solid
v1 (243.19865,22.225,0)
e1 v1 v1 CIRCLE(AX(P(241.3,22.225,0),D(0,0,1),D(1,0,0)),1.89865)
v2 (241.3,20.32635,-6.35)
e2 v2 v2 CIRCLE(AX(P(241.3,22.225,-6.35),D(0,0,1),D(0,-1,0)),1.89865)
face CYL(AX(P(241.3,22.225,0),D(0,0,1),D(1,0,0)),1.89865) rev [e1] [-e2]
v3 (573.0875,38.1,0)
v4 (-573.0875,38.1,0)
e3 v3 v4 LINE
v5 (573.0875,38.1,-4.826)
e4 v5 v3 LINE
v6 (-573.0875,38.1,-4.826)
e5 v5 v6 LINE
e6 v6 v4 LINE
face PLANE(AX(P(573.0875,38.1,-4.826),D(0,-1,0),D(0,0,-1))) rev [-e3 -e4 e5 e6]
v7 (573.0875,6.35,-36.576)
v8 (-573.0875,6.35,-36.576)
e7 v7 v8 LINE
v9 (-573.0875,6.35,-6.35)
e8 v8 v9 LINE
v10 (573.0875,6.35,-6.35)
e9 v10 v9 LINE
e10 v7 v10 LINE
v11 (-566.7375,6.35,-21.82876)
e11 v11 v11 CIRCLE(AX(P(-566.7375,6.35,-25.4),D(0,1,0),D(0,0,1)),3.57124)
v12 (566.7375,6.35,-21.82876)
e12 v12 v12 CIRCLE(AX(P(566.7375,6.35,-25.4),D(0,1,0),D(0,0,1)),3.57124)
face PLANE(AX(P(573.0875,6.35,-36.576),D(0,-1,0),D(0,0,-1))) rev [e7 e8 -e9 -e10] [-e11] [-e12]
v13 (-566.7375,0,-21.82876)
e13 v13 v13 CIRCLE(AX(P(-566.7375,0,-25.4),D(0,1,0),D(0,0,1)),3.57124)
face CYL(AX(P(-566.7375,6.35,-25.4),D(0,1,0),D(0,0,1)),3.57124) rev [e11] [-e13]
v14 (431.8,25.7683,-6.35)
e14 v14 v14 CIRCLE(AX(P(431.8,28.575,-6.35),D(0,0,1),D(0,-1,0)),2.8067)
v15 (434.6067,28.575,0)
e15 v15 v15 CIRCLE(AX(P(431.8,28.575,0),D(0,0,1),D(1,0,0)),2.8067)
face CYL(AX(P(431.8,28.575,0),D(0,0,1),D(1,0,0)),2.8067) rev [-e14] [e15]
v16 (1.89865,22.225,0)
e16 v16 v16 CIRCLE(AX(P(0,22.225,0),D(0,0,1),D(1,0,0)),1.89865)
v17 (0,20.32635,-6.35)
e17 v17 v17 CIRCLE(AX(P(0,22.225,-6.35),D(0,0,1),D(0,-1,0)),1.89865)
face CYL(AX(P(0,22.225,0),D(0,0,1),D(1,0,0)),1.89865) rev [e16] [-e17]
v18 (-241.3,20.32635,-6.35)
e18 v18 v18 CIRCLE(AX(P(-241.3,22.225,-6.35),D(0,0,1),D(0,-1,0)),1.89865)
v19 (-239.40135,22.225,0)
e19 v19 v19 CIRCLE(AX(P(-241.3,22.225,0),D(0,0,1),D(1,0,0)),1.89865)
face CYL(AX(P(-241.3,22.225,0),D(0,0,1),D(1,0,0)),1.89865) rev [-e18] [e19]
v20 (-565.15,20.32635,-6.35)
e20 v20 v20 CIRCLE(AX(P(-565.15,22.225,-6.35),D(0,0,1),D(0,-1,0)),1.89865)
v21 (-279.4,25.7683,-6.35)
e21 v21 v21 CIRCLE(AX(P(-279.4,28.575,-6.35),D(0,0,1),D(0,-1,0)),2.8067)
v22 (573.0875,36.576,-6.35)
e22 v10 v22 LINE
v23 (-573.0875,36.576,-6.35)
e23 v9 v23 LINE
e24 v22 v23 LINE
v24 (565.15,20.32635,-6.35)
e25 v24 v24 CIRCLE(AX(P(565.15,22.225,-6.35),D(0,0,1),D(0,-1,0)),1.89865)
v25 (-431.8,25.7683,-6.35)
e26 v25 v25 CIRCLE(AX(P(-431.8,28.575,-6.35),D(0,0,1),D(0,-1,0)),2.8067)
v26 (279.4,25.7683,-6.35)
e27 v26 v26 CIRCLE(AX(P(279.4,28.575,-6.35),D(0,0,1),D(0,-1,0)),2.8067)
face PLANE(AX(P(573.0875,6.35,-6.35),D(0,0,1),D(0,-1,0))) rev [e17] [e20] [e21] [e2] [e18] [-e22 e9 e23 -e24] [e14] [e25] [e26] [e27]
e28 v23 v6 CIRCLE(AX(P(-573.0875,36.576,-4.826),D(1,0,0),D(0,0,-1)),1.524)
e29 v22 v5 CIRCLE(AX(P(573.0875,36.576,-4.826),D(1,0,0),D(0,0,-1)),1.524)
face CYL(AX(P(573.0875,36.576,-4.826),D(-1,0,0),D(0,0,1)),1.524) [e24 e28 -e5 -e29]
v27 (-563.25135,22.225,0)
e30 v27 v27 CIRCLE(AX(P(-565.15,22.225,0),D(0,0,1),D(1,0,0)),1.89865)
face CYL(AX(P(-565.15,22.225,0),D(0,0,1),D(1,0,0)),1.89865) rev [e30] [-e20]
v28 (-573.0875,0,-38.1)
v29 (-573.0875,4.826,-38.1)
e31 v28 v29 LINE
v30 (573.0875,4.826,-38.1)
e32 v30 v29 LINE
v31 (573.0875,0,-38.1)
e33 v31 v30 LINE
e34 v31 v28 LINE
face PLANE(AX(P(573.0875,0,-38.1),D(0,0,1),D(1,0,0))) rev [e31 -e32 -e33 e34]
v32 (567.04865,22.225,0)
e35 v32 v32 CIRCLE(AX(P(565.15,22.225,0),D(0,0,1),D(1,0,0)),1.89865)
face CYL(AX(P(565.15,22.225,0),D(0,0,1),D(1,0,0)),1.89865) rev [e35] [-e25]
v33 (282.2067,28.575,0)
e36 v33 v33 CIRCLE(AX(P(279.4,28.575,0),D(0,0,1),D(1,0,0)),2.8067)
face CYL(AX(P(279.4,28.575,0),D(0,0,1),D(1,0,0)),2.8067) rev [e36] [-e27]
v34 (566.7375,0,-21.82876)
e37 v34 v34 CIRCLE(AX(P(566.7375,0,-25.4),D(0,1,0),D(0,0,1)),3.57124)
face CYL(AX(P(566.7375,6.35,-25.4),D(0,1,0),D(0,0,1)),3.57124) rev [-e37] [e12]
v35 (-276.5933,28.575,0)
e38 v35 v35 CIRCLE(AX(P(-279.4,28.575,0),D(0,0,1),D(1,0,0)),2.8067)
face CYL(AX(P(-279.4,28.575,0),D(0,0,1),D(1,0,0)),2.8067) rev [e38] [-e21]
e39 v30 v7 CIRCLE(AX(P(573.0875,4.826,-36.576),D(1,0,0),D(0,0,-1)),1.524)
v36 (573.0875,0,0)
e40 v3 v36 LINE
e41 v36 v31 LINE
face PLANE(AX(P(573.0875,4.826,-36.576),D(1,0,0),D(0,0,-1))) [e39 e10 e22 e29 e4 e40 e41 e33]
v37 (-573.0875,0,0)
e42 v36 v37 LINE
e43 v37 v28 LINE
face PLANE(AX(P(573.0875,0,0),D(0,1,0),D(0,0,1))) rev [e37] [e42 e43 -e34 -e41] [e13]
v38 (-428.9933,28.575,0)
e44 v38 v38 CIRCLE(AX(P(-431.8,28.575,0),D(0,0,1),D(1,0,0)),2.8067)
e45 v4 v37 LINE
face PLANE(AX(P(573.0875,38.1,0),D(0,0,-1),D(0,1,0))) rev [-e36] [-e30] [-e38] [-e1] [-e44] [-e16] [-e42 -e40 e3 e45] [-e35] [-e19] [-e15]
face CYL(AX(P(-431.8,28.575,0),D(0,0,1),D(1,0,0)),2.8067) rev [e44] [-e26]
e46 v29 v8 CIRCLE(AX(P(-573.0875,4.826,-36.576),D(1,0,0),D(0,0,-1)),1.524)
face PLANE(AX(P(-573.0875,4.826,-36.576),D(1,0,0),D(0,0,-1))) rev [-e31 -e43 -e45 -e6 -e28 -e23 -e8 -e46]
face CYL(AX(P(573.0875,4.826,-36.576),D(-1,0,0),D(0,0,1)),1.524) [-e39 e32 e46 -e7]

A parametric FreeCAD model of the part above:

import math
import FreeCAD as App
import Part
import Sketcher
from FreeCAD import Vector
Q = App.Units.Quantity

doc = App.newDocument("Part")
params = doc.addObject("Spreadsheet::Sheet", "Params")
for row, (alias, value) in enumerate([
    ("sketch1_radius", "0.06 in"),
    ("sketch1_width", "1.5 in"),
    ("sketch1_width2", "0.19 in"),
    ("pad1_length", "45.125 in"),
    ("hole_diameter", "0.2812 in"),
    ("hole2_diameter", "0.1495 in"),
    ("sketch4_diameter", "0.221 in"),
    ("hole3_diameter", "0.221 in"),
], start=1):
    params.set(f"A{row}", alias)
    params.set(f"B{row}", "=" + value)
    params.setAlias(f"B{row}", alias)

body = doc.addObject("PartDesign::Body", "Body")

sketch1 = body.newObject("Sketcher::SketchObject", "Sketch")
sketch1.AttachmentSupport = (doc.getObject("YZ_Plane"), [""])
sketch1.MapMode = "FlatFace"
sketch1.addGeometry([
    Part.LineSegment(Vector(38.1, 0, 0), Vector(0, 0, 0)),
    Part.LineSegment(Vector(0, 0, 0), Vector(0, -38.1, 0)),
    Part.LineSegment(Vector(0, -38.1, 0), Vector(4.826, -38.1, 0)),
    Part.ArcOfCircle(Part.Circle(Vector(4.826, -36.576, 0), Vector(0, 0, 1), 1.524), math.radians(-90), math.radians(0)),
    Part.LineSegment(Vector(6.35, -36.576, 0), Vector(6.35, -6.35, 0)),
    Part.LineSegment(Vector(6.35, -6.35, 0), Vector(36.576, -6.35, 0)),
    Part.ArcOfCircle(Part.Circle(Vector(36.576, -4.826, 0), Vector(0, 0, 1), 1.524), math.radians(-90), math.radians(0)),
    Part.LineSegment(Vector(38.1, -4.826, 0), Vector(38.1, 0, 0)),
], False)
sketch1.addConstraint([
    Sketcher.Constraint("Coincident", 0, 2, 1, 1),
    Sketcher.Constraint("Coincident", 1, 2, 2, 1),
    Sketcher.Constraint("Tangent", 2, 2, 3, 1),
    Sketcher.Constraint("Tangent", 3, 2, 4, 1),
    Sketcher.Constraint("Coincident", 4, 2, 5, 1),
    Sketcher.Constraint("Tangent", 5, 2, 6, 1),
    Sketcher.Constraint("Tangent", 6, 2, 7, 1),
    Sketcher.Constraint("Coincident", 7, 2, 0, 1),
    Sketcher.Constraint("Horizontal", 0),
    Sketcher.Constraint("Vertical", 1),
    Sketcher.Constraint("Horizontal", 2),
    Sketcher.Constraint("Vertical", 4),
    Sketcher.Constraint("Horizontal", 5),
    Sketcher.Constraint("Vertical", 7),
    Sketcher.Constraint("Coincident", 0, 2, -1, 1),
    Sketcher.Constraint("Equal", 3, 6),
    Sketcher.Constraint("Equal", 0, 1),
    Sketcher.Constraint("Equal", 5, 4),
    Sketcher.Constraint("Radius", 3, Q("0.06 in")),
    Sketcher.Constraint("DistanceX", 0, 2, 0, 1, Q("1.5 in")),
    Sketcher.Constraint("DistanceX", 2, 1, 2, 2, Q("0.19 in")),
])
sketch1.setExpression("Constraints[18]", "Params.sketch1_radius")
sketch1.setExpression("Constraints[19]", "Params.sketch1_width")
sketch1.setExpression("Constraints[20]", "Params.sketch1_width2")
pad1 = body.newObject("PartDesign::Pad", "Pad")
pad1.Profile = sketch1
pad1.setExpression("Length", "Params.pad1_length")
pad1.Midplane = True

sketch2 = body.newObject("Sketcher::SketchObject", "Sketch001")
sketch2.AttachmentSupport = (doc.getObject("XZ_Plane"), [""])
sketch2.MapMode = "FlatFace"
sketch2.AttachmentOffset = App.Placement(Vector(0, 0, -0.25 * 25.4), App.Rotation())
sketch2.addGeometry([
    Part.Circle(Vector(566.7375, -25.4, 0), Vector(0, 0, 1), 3.57124),
    Part.Circle(Vector(-566.7375, -25.4, 0), Vector(0, 0, 1), 3.57124),
], False)
sketch2.addConstraint([
    Sketcher.Constraint("Equal", 0, 1),
    Sketcher.Constraint("Symmetric", 0, 3, 1, 3, -2),
    Sketcher.Constraint("DistanceY", 0, 3, -1, 1, Q("1 in")),
    Sketcher.Constraint("Diameter", 0, Q("0.2812 in")),
    Sketcher.Constraint("DistanceX", -1, 1, 0, 3, Q("22.3125 in")),
])
doc.recompute()
hole = body.newObject("PartDesign::Hole", "Hole")
hole.Profile = sketch2
hole.ThreadType = "None"
hole.setExpression("Diameter", "Params.hole_diameter")
hole.DepthType = "ThroughAll"
hole.Reversed = True

sketch3 = body.newObject("Sketcher::SketchObject", "Sketch002")
sketch3.AttachmentSupport = (doc.getObject("XY_Plane"), [""])
sketch3.MapMode = "FlatFace"
sketch3.addGeometry([
    Part.Circle(Vector(-565.15, 22.225, 0), Vector(0, 0, 1), 1.89865),
    Part.Circle(Vector(565.15, 22.225, 0), Vector(0, 0, 1), 1.89865),
    Part.Circle(Vector(-241.3, 22.225, 0), Vector(0, 0, 1), 1.89865),
    Part.Circle(Vector(241.3, 22.225, 0), Vector(0, 0, 1), 1.89865),
    Part.Circle(Vector(0, 22.225, 0), Vector(0, 0, 1), 1.89865),
], False)
sketch3.addConstraint([
    Sketcher.Constraint("Equal", 0, 1),
    Sketcher.Constraint("Equal", 1, 2),
    Sketcher.Constraint("Equal", 2, 3),
    Sketcher.Constraint("Equal", 3, 4),
    Sketcher.Constraint("Symmetric", 0, 3, 1, 3, -2),
    Sketcher.Constraint("Symmetric", 2, 3, 3, 3, -2),
    Sketcher.Constraint("PointOnObject", 4, 3, -2),
    Sketcher.Constraint("Horizontal", 1, 3, 2, 3),
    Sketcher.Constraint("Horizontal", 3, 3, 4, 3),
    Sketcher.Constraint("DistanceX", 2, 3, 3, 3, Q("19 in")),
    Sketcher.Constraint("Diameter", 0, Q("0.1495 in")),
    Sketcher.Constraint("DistanceX", 0, 3, 1, 3, Q("44.5 in")),
    Sketcher.Constraint("DistanceY", -1, 1, 0, 3, Q("0.875 in")),
])
doc.recompute()
hole2 = body.newObject("PartDesign::Hole", "Hole001")
hole2.Profile = sketch3
hole2.ThreadType = "None"
hole2.setExpression("Diameter", "Params.hole2_diameter")
hole2.DepthType = "ThroughAll"

sketch4 = body.newObject("Sketcher::SketchObject", "Sketch003")
sketch4.AttachmentSupport = (doc.getObject("XY_Plane"), [""])
sketch4.MapMode = "FlatFace"
sketch4.addGeometry([
    Part.Circle(Vector(-431.8, 28.575, 0), Vector(0, 0, 1), 2.8067),
    Part.Circle(Vector(-279.4, 28.575, 0), Vector(0, 0, 1), 2.8067),
    Part.Circle(Vector(279.4, 28.575, 0), Vector(0, 0, 1), 2.8067),
    Part.Circle(Vector(431.8, 28.575, 0), Vector(0, 0, 1), 2.8067),
], False)
sketch4.addConstraint([
    Sketcher.Constraint("Equal", 0, 1),
    Sketcher.Constraint("Equal", 1, 2),
    Sketcher.Constraint("Equal", 2, 3),
    Sketcher.Constraint("Symmetric", 1, 3, 2, 3, -2),
    Sketcher.Constraint("Symmetric", 0, 3, 3, 3, -2),
    Sketcher.Constraint("Horizontal", 0, 3, 1, 3),
    Sketcher.Constraint("Diameter", 0, Q("0.221 in")),
    Sketcher.Constraint("DistanceX", 0, 3, -1, 1, Q("17 in")),
    Sketcher.Constraint("DistanceX", 1, 3, -1, 1, Q("11 in")),
    Sketcher.Constraint("DistanceY", -1, 1, 0, 3, Q("1.125 in")),
])
sketch4.setExpression("Constraints[6]", "Params.sketch4_diameter")
doc.recompute()
hole3 = body.newObject("PartDesign::Hole", "Hole002")
hole3.Profile = sketch4
hole3.ThreadType = "None"
hole3.setExpression("Diameter", "Params.hole3_diameter")
hole3.DepthType = "ThroughAll"

doc.recompute()
